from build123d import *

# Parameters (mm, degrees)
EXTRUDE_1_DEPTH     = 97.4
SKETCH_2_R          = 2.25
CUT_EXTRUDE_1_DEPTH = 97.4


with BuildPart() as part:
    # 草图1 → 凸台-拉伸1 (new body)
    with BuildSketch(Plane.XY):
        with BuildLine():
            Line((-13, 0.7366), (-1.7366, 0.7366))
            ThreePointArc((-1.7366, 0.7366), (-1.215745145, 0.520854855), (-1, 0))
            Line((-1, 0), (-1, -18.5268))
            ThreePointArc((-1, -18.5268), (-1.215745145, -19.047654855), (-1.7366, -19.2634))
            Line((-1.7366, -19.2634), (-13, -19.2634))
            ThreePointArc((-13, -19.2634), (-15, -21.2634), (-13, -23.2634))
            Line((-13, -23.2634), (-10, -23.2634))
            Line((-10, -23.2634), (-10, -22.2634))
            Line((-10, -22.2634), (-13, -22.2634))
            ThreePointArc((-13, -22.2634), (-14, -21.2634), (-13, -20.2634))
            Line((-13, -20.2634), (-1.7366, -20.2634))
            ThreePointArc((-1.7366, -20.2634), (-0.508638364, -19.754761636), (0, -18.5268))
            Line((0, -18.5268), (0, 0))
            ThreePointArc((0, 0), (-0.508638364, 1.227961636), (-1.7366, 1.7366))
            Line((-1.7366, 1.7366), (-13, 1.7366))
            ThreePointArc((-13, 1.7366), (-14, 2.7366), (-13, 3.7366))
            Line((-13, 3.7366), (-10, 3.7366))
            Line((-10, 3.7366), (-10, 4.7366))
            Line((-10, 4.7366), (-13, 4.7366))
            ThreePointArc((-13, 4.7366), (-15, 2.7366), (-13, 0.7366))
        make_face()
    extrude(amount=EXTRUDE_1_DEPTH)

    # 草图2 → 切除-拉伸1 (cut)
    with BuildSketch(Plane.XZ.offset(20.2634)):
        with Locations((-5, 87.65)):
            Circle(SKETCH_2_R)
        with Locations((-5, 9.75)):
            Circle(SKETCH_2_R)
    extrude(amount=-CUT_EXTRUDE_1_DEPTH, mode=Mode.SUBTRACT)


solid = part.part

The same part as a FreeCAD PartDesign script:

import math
import FreeCAD as App
import Part
import Sketcher
from FreeCAD import Vector

doc = App.newDocument("Part")
params = doc.addObject("Spreadsheet::Sheet", "Params")
for row, (alias, value) in enumerate([
    ("sketch1_radius", "2 mm"),
    ("sketch1_radius2", "1 mm"),
    ("sketch1_width", "3 mm"),
    ("pad1_length", "97.4 mm"),
    ("sketch2_diameter", "4.5 mm"),
    ("pocket1_length", "97.4 mm"),
], start=1):
    params.set(f"A{row}", alias)
    params.set(f"B{row}", "=" + value)
    params.setAlias(f"B{row}", alias)

body = doc.addObject("PartDesign::Body", "Body")

# Sketch on XY plane
sketch1 = body.newObject("Sketcher::SketchObject", "Sketch")
sketch1.AttachmentSupport = (doc.getObject("XY_Plane"), [""])
sketch1.MapMode = "FlatFace"
sketch1.addGeometry(Part.LineSegment(Vector(-13, 0.7, 0), Vector(-1.7, 0.7, 0)), False)
sketch1.addGeometry(Part.ArcOfCircle(Part.Circle(Vector(-1.7, 0, 0), Vector(0, 0, 1), 0.7), math.radians(0), math.radians(90)), False)
sketch1.addGeometry(Part.LineSegment(Vector(-1, 0, 0), Vector(-1, -18.5, 0)), False)
sketch1.addGeometry(Part.ArcOfCircle(Part.Circle(Vector(-1.7, -18.5, 0), Vector(0, 0, 1), 0.7), math.radians(-90), math.radians(0)), False)
sketch1.addGeometry(Part.LineSegment(Vector(-1.7, -19.3, 0), Vector(-13, -19.3, 0)), False)
sketch1.addGeometry(Part.ArcOfCircle(Part.Circle(Vector(-13, -21.3, 0), Vector(0, 0, 1), 2), math.radians(90), math.radians(270)), False)
sketch1.addGeometry(Part.LineSegment(Vector(-13, -23.3, 0), Vector(-10, -23.3, 0)), False)
sketch1.addGeometry(Part.LineSegment(Vector(-10, -23.3, 0), Vector(-10, -22.3, 0)), False)
sketch1.addGeometry(Part.LineSegment(Vector(-10, -22.3, 0), Vector(-13, -22.3, 0)), False)
sketch1.addGeometry(Part.ArcOfCircle(Part.Circle(Vector(-13, -21.3, 0), Vector(0, 0, 1), 1), math.radians(90), math.radians(270)), False)
sketch1.addGeometry(Part.LineSegment(Vector(-13, -20.3, 0), Vector(-1.7, -20.3, 0)), False)
sketch1.addGeometry(Part.ArcOfCircle(Part.Circle(Vector(-1.7, -18.5, 0), Vector(0, 0, 1), 1.7), math.radians(-90), math.radians(0)), False)
sketch1.addGeometry(Part.LineSegment(Vector(0, -18.5, 0), Vector(0, 0, 0)), False)
sketch1.addGeometry(Part.ArcOfCircle(Part.Circle(Vector(-1.7, 0, 0), Vector(0, 0, 1), 1.7), math.radians(0), math.radians(90)), False)
sketch1.addGeometry(Part.LineSegment(Vector(-1.7, 1.7, 0), Vector(-13, 1.7, 0)), False)
sketch1.addGeometry(Part.ArcOfCircle(Part.Circle(Vector(-13, 2.7, 0), Vector(0, 0, 1), 1), math.radians(90), math.radians(270)), False)
sketch1.addGeometry(Part.LineSegment(Vector(-13, 3.7, 0), Vector(-10, 3.7, 0)), False)
sketch1.addGeometry(Part.LineSegment(Vector(-10, 3.7, 0), Vector(-10, 4.7, 0)), False)
sketch1.addGeometry(Part.LineSegment(Vector(-10, 4.7, 0), Vector(-13, 4.7, 0)), False)
sketch1.addGeometry(Part.ArcOfCircle(Part.Circle(Vector(-13, 2.7, 0), Vector(0, 0, 1), 2), math.radians(90), math.radians(270)), False)
sketch1.addConstraint(Sketcher.Constraint("Tangent", 0, 2, 1, 2))
sketch1.addConstraint(Sketcher.Constraint("Tangent", 1, 1, 2, 1))
sketch1.addConstraint(Sketcher.Constraint("Tangent", 2, 2, 3, 2))
sketch1.addConstraint(Sketcher.Constraint("Tangent", 3, 1, 4, 1))
sketch1.addConstraint(Sketcher.Constraint("Tangent", 4, 2, 5, 1))
sketch1.addConstraint(Sketcher.Constraint("Tangent", 5, 2, 6, 1))
sketch1.addConstraint(Sketcher.Constraint("Coincident", 6, 2, 7, 1))
sketch1.addConstraint(Sketcher.Constraint("Coincident", 7, 2, 8, 1))
sketch1.addConstraint(Sketcher.Constraint("Tangent", 8, 2, 9, 2))
sketch1.addConstraint(Sketcher.Constraint("Tangent", 9, 1, 10, 1))
sketch1.addConstraint(Sketcher.Constraint("Tangent", 10, 2, 11, 1))
sketch1.addConstraint(Sketcher.Constraint("Tangent", 11, 2, 12, 1))
sketch1.addConstraint(Sketcher.Constraint("Tangent", 12, 2, 13, 1))
sketch1.addConstraint(Sketcher.Constraint("Tangent", 13, 2, 14, 1))
sketch1.addConstraint(Sketcher.Constraint("Tangent", 14, 2, 15, 2))
sketch1.addConstraint(Sketcher.Constraint("Tangent", 15, 1, 16, 1))
sketch1.addConstraint(Sketcher.Constraint("Coincident", 16, 2, 17, 1))
sketch1.addConstraint(Sketcher.Constraint("Coincident", 17, 2, 18, 1))
sketch1.addConstraint(Sketcher.Constraint("Tangent", 18, 2, 19, 1))
sketch1.addConstraint(Sketcher.Constraint("Tangent", 19, 2, 0, 1))
sketch1.addConstraint(Sketcher.Constraint("Horizontal", 0))
sketch1.addConstraint(Sketcher.Constraint("Vertical", 2))
sketch1.addConstraint(Sketcher.Constraint("Horizontal", 4))
sketch1.addConstraint(Sketcher.Constraint("Horizontal", 6))
sketch1.addConstraint(Sketcher.Constraint("Vertical", 7))
sketch1.addConstraint(Sketcher.Constraint("Horizontal", 8))
sketch1.addConstraint(Sketcher.Constraint("Horizontal", 10))
sketch1.addConstraint(Sketcher.Constraint("Vertical", 12))
sketch1.addConstraint(Sketcher.Constraint("Horizontal", 14))
sketch1.addConstraint(Sketcher.Constraint("Horizontal", 16))
sketch1.addConstraint(Sketcher.Constraint("Vertical", 17))
sketch1.addConstraint(Sketcher.Constraint("Horizontal", 18))
sketch1.addConstraint(Sketcher.Constraint("Coincident", 12, 2, -1, 1))
sketch1.addConstraint(Sketcher.Constraint("Coincident", 9, 3, 5, 3))
sketch1.addConstraint(Sketcher.Constraint("Coincident", 11, 3, 3, 3))
sketch1.addConstraint(Sketcher.Constraint("Coincident", 13, 3, 1, 3))
sketch1.addConstraint(Sketcher.Constraint("Coincident", 19, 3, 15, 3))
sketch1.addConstraint(Sketcher.Constraint("Equal", 1, 3))
sketch1.addConstraint(Sketcher.Constraint("Equal", 9, 15))
sketch1.addConstraint(Sketcher.Constraint("Vertical", 9, 3, 15, 3))
sketch1.addConstraint(Sketcher.Constraint("Vertical", 7, 2, 16, 2))
sketch1.addConstraint(Sketcher.Constraint("Radius", 5, 2.0))
sketch1.addConstraint(Sketcher.Constraint("Radius", 9, 1.0))
sketch1.addConstraint(Sketcher.Constraint("DistanceX", 6, 1, 6, 2, 3.0))
sketch1.addConstraint(Sketcher.Constraint("DistanceX", 5, 3, -1, 1, 13.0))
sketch1.addConstraint(Sketcher.Constraint("DistanceY", 5, 3, 15, 3, 24.0))
sketch1.addConstraint(Sketcher.Constraint("Radius", 1, 0.7366))
sketch1.setExpression("Constraints[41]", "Params.sketch1_radius")
sketch1.setExpression("Constraints[42]", "Params.sketch1_radius2")
sketch1.setExpression("Constraints[43]", "Params.sketch1_width")
pad1 = body.newObject("PartDesign::Pad", "Pad")
pad1.Profile = sketch1
pad1.setExpression("Length", "Params.pad1_length")

# Sketch on XZ plane
sketch2 = body.newObject("Sketcher::SketchObject", "Sketch001")
sketch2.AttachmentSupport = (doc.getObject("XZ_Plane"), [""])
sketch2.MapMode = "FlatFace"
sketch2.AttachmentOffset = App.Placement(Vector(0, 0, 20.2634), App.Rotation())
sketch2.addGeometry(Part.Circle(Vector(-5, 87.7, 0), Vector(0, 0, 1), 2.2), False)
sketch2.addGeometry(Part.Circle(Vector(-5, 9.8, 0), Vector(0, 0, 1), 2.2), False)
sketch2.addConstraint(Sketcher.Constraint("Equal", 0, 1))
sketch2.addConstraint(Sketcher.Constraint("Vertical", 0, 3, 1, 3))
sketch2.addConstraint(Sketcher.Constraint("Diameter", 0, 4.5))
sketch2.addConstraint(Sketcher.Constraint("DistanceX", 0, 3, -1, 1, 5.0))
sketch2.addConstraint(Sketcher.Constraint("DistanceY", 1, 3, 0, 3, 77.9))
sketch2.addConstraint(Sketcher.Constraint("DistanceY", -1, 1, 0, 3, 87.65))
sketch2.setExpression("Constraints[2]", "Params.sketch2_diameter")
pocket1 = body.newObject("PartDesign::Pocket", "Pocket")
pocket1.Profile = sketch2
pocket1.setExpression("Length", "Params.pocket1_length")

doc.recompute()
